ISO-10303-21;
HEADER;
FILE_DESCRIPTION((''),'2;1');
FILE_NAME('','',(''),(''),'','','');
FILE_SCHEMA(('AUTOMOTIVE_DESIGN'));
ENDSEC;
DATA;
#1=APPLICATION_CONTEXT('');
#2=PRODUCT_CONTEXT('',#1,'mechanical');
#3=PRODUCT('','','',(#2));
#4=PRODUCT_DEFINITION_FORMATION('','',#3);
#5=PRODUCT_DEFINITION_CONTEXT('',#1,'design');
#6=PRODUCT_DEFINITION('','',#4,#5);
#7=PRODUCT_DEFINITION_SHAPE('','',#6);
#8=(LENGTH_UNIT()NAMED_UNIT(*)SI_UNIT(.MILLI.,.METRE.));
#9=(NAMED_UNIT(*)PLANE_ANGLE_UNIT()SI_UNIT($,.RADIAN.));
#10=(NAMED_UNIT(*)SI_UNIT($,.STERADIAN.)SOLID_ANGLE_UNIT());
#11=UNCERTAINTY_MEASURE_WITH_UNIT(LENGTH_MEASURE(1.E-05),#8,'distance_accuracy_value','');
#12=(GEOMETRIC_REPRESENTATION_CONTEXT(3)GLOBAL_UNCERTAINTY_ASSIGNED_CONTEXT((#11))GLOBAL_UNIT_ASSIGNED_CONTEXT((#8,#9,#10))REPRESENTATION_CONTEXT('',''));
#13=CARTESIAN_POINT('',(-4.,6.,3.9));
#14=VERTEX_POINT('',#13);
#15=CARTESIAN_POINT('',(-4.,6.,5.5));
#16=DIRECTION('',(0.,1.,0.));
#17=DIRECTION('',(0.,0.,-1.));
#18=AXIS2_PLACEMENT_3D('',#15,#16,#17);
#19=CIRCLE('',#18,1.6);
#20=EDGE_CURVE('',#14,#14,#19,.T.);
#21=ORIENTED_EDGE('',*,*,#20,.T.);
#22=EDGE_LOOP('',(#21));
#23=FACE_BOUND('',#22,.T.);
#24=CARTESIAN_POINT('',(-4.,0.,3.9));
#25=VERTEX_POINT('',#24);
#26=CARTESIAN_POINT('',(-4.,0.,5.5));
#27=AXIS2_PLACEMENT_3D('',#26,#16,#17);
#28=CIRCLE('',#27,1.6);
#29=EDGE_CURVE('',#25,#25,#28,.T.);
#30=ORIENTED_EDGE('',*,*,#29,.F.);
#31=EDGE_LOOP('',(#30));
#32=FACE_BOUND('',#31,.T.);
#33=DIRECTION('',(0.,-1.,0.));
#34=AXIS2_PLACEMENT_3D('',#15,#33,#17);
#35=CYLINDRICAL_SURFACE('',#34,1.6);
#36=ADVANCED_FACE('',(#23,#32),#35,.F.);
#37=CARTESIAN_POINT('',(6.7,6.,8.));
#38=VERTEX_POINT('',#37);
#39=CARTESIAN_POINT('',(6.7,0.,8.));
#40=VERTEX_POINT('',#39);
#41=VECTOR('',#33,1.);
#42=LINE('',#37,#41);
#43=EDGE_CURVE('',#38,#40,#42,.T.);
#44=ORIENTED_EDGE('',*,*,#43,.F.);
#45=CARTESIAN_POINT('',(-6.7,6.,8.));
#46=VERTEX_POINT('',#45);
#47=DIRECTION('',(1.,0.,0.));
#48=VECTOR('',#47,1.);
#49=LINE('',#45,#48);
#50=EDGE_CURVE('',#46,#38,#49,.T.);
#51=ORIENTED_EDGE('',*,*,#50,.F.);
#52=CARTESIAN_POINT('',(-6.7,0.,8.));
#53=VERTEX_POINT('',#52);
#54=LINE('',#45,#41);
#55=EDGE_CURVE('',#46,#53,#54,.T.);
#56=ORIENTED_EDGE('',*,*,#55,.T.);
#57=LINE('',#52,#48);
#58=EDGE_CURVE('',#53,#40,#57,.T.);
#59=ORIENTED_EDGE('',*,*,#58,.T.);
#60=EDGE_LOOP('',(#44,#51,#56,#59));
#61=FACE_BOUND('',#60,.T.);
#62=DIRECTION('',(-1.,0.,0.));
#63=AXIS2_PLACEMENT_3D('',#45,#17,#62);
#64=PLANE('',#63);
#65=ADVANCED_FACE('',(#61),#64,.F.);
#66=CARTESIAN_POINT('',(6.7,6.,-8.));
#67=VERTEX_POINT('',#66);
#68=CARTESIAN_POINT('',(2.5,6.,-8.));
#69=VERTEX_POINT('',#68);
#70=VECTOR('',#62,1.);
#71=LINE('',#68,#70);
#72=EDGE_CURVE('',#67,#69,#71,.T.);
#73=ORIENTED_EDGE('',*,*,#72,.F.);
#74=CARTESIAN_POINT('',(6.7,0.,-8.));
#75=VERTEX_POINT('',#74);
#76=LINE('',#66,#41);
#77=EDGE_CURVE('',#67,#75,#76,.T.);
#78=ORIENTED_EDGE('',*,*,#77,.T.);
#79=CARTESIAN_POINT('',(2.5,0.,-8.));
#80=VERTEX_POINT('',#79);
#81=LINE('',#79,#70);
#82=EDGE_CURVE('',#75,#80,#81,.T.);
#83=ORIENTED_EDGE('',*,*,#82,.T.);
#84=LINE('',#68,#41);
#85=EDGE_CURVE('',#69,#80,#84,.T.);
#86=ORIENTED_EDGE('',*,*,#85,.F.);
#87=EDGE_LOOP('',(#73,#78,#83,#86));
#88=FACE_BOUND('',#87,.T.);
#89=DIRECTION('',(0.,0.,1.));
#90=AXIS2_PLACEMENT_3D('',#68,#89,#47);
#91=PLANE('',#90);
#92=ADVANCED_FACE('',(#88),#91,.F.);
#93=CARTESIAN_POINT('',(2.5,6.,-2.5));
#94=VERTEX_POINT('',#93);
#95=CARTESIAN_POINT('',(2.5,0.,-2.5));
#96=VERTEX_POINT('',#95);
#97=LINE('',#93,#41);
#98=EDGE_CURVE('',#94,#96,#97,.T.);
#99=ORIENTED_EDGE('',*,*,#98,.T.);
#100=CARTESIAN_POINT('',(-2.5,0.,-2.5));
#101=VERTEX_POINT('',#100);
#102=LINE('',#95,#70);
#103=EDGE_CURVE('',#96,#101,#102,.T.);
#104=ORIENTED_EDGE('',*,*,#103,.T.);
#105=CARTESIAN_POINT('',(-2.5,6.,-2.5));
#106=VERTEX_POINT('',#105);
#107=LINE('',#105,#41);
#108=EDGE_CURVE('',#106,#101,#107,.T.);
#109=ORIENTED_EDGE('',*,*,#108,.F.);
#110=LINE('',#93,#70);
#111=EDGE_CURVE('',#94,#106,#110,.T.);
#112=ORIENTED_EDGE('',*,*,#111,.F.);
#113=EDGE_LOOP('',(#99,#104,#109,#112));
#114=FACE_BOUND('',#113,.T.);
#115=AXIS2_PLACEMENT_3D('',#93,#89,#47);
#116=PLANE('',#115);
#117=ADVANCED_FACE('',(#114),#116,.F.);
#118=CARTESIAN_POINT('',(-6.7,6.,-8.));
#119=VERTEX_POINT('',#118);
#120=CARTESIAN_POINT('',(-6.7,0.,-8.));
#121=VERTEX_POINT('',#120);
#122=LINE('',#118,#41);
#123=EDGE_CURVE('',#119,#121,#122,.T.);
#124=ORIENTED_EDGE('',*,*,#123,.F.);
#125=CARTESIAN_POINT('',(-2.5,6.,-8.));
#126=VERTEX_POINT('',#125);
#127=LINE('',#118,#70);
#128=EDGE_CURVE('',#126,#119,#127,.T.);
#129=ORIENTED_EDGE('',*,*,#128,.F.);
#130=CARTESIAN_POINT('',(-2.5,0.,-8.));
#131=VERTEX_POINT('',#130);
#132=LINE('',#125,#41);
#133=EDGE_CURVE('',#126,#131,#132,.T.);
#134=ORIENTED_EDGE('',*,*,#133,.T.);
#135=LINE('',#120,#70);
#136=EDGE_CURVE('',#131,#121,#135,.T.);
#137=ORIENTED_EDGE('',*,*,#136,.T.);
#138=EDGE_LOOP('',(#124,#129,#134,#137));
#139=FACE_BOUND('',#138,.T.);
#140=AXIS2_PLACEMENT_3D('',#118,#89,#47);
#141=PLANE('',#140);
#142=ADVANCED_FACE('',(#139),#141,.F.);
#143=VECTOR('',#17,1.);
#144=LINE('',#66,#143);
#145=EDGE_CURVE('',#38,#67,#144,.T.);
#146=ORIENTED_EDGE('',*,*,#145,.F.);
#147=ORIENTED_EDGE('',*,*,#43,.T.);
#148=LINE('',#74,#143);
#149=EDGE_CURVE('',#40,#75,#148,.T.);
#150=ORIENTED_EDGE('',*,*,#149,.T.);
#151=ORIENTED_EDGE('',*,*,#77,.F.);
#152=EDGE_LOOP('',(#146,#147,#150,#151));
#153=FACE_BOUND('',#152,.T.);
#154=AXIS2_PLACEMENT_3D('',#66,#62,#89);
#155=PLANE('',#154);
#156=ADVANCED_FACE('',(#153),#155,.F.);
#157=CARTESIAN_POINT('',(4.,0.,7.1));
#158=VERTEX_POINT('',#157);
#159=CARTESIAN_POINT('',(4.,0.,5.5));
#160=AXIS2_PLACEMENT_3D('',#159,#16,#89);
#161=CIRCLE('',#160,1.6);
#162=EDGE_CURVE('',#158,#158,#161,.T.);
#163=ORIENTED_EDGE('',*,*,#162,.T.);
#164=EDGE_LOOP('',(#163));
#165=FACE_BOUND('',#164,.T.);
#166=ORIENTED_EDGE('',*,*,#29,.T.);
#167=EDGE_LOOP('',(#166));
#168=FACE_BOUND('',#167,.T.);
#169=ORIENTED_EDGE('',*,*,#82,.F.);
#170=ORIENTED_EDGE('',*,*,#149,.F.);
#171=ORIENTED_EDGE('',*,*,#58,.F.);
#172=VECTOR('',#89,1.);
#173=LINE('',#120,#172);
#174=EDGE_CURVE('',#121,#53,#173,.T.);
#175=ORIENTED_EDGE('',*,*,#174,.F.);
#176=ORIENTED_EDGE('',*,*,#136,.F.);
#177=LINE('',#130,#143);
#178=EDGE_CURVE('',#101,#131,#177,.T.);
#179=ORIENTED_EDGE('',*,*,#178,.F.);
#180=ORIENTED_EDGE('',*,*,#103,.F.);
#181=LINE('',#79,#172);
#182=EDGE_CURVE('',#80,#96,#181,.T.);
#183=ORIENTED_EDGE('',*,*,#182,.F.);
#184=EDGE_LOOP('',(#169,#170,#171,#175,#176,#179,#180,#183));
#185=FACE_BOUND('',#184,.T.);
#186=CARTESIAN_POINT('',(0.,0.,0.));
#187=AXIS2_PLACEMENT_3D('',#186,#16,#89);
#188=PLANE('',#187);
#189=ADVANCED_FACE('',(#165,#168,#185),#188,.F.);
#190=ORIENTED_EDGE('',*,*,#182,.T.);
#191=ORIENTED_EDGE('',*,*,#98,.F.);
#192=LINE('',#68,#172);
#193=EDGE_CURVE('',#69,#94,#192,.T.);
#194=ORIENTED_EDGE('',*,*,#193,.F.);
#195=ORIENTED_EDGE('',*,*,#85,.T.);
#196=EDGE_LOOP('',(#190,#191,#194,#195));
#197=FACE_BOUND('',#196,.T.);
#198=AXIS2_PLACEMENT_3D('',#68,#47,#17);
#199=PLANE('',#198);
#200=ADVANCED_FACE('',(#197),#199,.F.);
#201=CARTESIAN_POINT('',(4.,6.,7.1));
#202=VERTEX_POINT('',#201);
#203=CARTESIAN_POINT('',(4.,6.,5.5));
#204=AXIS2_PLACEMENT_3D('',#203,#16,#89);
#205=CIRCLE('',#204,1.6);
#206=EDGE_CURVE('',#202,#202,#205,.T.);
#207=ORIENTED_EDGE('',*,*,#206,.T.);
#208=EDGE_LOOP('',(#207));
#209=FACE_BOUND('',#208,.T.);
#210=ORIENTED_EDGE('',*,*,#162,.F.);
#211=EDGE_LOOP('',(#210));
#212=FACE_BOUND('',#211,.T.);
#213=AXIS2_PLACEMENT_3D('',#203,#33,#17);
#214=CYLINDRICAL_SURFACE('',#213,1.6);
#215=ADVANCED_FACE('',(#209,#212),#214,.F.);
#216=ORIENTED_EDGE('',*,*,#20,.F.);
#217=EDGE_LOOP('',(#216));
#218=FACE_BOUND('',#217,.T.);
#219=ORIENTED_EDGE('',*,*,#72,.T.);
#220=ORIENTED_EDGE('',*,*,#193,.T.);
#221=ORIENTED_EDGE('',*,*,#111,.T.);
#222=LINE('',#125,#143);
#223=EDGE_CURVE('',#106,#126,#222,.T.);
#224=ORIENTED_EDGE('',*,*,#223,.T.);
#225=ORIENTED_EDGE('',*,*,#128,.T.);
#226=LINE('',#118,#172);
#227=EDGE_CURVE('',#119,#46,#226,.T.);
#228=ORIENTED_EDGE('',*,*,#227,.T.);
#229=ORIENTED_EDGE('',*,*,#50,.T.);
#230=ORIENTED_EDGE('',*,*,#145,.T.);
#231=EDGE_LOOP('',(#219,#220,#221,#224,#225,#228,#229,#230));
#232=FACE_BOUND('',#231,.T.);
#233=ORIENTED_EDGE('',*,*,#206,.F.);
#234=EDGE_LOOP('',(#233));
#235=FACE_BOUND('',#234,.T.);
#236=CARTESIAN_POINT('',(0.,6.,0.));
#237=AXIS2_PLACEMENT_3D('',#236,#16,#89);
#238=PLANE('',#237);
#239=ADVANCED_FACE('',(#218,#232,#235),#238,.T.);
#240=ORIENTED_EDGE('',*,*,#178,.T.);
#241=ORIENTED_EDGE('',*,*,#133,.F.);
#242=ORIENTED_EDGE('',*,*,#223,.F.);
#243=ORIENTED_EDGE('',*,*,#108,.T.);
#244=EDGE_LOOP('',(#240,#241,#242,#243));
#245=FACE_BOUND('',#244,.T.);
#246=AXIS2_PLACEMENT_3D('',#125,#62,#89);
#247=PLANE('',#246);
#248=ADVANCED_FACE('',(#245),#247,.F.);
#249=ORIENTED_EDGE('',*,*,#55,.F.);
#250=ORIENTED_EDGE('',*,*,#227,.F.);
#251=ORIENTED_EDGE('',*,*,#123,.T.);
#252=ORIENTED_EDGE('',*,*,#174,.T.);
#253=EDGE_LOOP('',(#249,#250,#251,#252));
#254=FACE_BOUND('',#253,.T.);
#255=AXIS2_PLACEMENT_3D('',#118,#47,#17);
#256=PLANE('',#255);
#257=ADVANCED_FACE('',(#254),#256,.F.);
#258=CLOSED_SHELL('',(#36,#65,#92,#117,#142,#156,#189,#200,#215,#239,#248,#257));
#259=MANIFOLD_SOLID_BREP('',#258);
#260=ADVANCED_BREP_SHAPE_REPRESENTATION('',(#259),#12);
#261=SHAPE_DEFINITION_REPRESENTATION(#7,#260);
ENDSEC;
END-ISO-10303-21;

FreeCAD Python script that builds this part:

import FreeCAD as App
import Part
import Sketcher

V = App.Vector


def add_polygon(sketch, points):
    """Adds a closed chain of lines whose ends are joined by coincident constraints."""
    first, n = sketch.GeometryCount, len(points)
    for a, b in zip(points, points[1:] + points[:1]):
        sketch.addGeometry(Part.LineSegment(App.Vector(*a, 0), App.Vector(*b, 0)), False)
    for i in range(n):
        sketch.addConstraint(Sketcher.Constraint("Coincident", first + i, 2, first + (i + 1) % n, 1))

doc = App.newDocument("Part")
body = doc.addObject("PartDesign::Body", "Body")

sketch1 = body.newObject("Sketcher::SketchObject", "Sketch")
sketch1.AttachmentSupport = (doc.getObject("XZ_Plane"), [""])
sketch1.MapMode = "FlatFace"
add_polygon(sketch1, [(-2.5, -8), (-6.7, -8), (-6.7, 8), (6.7, 8), (6.7, -8), (2.5, -8), (2.5, -2.5), (-2.5, -2.5)])
sketch1.addGeometry(Part.Circle(V(4, 5.5, 0), V(0, 0, 1), 1.6), False)
sketch1.addGeometry(Part.Circle(V(-4, 5.5, 0), V(0, 0, 1), 1.6), False)
sketch1.addConstraint(Sketcher.Constraint("Horizontal", 0))
sketch1.addConstraint(Sketcher.Constraint("Vertical", 1))
sketch1.addConstraint(Sketcher.Constraint("Horizontal", 2))
sketch1.addConstraint(Sketcher.Constraint("Vertical", 3))
sketch1.addConstraint(Sketcher.Constraint("Horizontal", 4))
sketch1.addConstraint(Sketcher.Constraint("Vertical", 5))
sketch1.addConstraint(Sketcher.Constraint("Horizontal", 6))
sketch1.addConstraint(Sketcher.Constraint("Vertical", 7))
sketch1.addConstraint(Sketcher.Constraint("Equal", 8, 9))
sketch1.addConstraint(Sketcher.Constraint("Symmetric", 0, 2, 2, 2, -1, 1))
sketch1.addConstraint(Sketcher.Constraint("Symmetric", 8, 3, 9, 3, -2))
sketch1.addConstraint(Sketcher.Constraint("Symmetric", 4, 2, 7, 2, -2))
sketch1.addConstraint(Sketcher.Constraint("Diameter", 8, 3.2))
sketch1.addConstraint(Sketcher.Constraint("DistanceX", 6, 2, 6, 1, 5.0))
sketch1.addConstraint(Sketcher.Constraint("DistanceY", 1, 1, 1, 2, 16.0))
sketch1.addConstraint(Sketcher.Constraint("DistanceX", 0, 2, 0, 1, 4.2))
sketch1.addConstraint(Sketcher.Constraint("DistanceY", 5, 1, 5, 2, 5.5))
sketch1.addConstraint(Sketcher.Constraint("DistanceX", -1, 1, 8, 3, 4.0))
sketch1.addConstraint(Sketcher.Constraint("DistanceY", 5, 2, 8, 3, 8.0))
pad1 = body.newObject("PartDesign::Pad", "Pad")
pad1.Profile = sketch1
pad1.Length = 6
pad1.Reversed = True

doc.recompute()
